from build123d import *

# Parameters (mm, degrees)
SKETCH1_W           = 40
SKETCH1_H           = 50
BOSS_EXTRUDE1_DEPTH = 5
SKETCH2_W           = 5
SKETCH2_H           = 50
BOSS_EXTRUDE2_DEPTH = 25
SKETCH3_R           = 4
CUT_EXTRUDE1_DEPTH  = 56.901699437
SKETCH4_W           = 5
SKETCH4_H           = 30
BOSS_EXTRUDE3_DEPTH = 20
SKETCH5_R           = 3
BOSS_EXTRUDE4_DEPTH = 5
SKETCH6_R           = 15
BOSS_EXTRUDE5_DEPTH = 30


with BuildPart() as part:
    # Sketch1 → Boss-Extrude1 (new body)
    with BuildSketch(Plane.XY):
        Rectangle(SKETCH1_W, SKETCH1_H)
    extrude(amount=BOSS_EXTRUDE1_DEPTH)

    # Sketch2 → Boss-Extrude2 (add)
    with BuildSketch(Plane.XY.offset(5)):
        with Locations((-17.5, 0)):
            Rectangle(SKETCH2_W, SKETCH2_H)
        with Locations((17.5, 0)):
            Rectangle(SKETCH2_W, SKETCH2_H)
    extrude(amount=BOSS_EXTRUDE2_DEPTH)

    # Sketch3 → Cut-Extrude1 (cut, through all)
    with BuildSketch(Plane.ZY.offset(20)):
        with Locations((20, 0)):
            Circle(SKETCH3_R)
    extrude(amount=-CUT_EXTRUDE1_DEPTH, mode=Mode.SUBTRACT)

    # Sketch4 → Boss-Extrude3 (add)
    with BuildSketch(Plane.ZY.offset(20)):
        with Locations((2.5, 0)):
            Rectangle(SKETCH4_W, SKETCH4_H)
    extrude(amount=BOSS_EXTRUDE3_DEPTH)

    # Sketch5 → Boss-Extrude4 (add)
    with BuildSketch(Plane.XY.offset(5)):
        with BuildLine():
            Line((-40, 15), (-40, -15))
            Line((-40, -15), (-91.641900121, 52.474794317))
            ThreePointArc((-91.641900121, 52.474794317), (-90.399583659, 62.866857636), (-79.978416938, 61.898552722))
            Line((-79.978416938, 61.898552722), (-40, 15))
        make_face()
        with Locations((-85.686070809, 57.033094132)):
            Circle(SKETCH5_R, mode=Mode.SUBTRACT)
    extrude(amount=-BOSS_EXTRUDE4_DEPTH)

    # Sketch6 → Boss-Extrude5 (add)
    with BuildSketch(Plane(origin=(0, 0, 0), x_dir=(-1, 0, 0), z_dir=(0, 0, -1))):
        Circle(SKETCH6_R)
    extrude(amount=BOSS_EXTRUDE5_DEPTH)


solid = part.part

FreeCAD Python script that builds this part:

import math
import FreeCAD as App
import Part
import Sketcher
from FreeCAD import Vector
Q = App.Units.Quantity


def add_polygon(sketch, points):
    """Adds a closed chain of lines whose ends are joined by coincident constraints."""
    first, n = sketch.GeometryCount, len(points)
    for a, b in zip(points, points[1:] + points[:1]):
        sketch.addGeometry(Part.LineSegment(App.Vector(*a, 0), App.Vector(*b, 0)), False)
    for i in range(n):
        sketch.addConstraint(Sketcher.Constraint("Coincident", first + i, 2, first + (i + 1) % n, 1))

doc = App.newDocument("Part")
body = doc.addObject("PartDesign::Body", "Body")

sketch1 = doc.addObject("Sketcher::SketchObject", "Sketch")
body.addObject(sketch1)
sketch1.AttachmentSupport = (doc.XY_Plane, [""])
sketch1.MapMode = "FlatFace"
add_polygon(sketch1, [(-20, 25), (-20, -25), (20, -25), (20, 25)])
sketch1.addConstraint(Sketcher.Constraint("Vertical", 0))
sketch1.addConstraint(Sketcher.Constraint("Horizontal", 1))
sketch1.addConstraint(Sketcher.Constraint("Vertical", 2))
sketch1.addConstraint(Sketcher.Constraint("Horizontal", 3))
sketch1.addConstraint(Sketcher.Constraint("Symmetric", 0, 2, 2, 2, -1, 1))
sketch1.addConstraint(Sketcher.Constraint("DistanceX", 1, 1, 1, 2, Q("40 mm")))
sketch1.addConstraint(Sketcher.Constraint("DistanceY", 0, 2, 0, 1, Q("50 mm")))
pad1 = doc.addObject("PartDesign::Pad", "Pad")
body.addObject(pad1)
pad1.Profile = sketch1
pad1.Length = 5

sketch2 = doc.addObject("Sketcher::SketchObject", "Sketch001")
body.addObject(sketch2)
sketch2.AttachmentSupport = (doc.XY_Plane, [""])
sketch2.MapMode = "FlatFace"
sketch2.AttachmentOffset = App.Placement(Vector(0, 0, 5), App.Rotation())
add_polygon(sketch2, [(-20, 25), (-20, -25), (-15, -25), (-15, 25)])
add_polygon(sketch2, [(15, 25), (15, -25), (20, -25), (20, 25)])
sketch2.addConstraint(Sketcher.Constraint("Vertical", 0))
sketch2.addConstraint(Sketcher.Constraint("Horizontal", 1))
sketch2.addConstraint(Sketcher.Constraint("Vertical", 2))
sketch2.addConstraint(Sketcher.Constraint("Horizontal", 3))
sketch2.addConstraint(Sketcher.Constraint("Vertical", 4))
sketch2.addConstraint(Sketcher.Constraint("Horizontal", 5))
sketch2.addConstraint(Sketcher.Constraint("Vertical", 6))
sketch2.addConstraint(Sketcher.Constraint("Horizontal", 7))
sketch2.addConstraint(Sketcher.Constraint("Symmetric", 2, 2, 4, 2, -1, 1))
sketch2.addConstraint(Sketcher.Constraint("Symmetric", 0, 2, 6, 2, -1, 1))
sketch2.addConstraint(Sketcher.Constraint("Horizontal", 1, 2, 4, 2))
sketch2.addConstraint(Sketcher.Constraint("DistanceX", 1, 1, 1, 2, Q("5 mm")))
sketch2.addConstraint(Sketcher.Constraint("DistanceY", 0, 2, 0, 1, Q("50 mm")))
sketch2.addConstraint(Sketcher.Constraint("DistanceX", 0, 2, -1, 1, Q("20 mm")))
pad2 = doc.addObject("PartDesign::Pad", "Pad001")
body.addObject(pad2)
pad2.Profile = sketch2
pad2.Length = 25

sketch3 = doc.addObject("Sketcher::SketchObject", "Sketch002")
body.addObject(sketch3)
sketch3.AttachmentSupport = (doc.YZ_Plane, [""])
sketch3.MapMode = "FlatFace"
sketch3.AttachmentOffset = App.Placement(Vector(0, 0, -20), App.Rotation())
sketch3.addGeometry(Part.Circle(Vector(0, 20, 0), Vector(0, 0, 1), 4), False)
sketch3.addConstraint(Sketcher.Constraint("PointOnObject", 0, 3, -2))
sketch3.addConstraint(Sketcher.Constraint("Diameter", 0, Q("8 mm")))
sketch3.addConstraint(Sketcher.Constraint("DistanceY", -1, 1, 0, 3, Q("20 mm")))
pocket1 = doc.addObject("PartDesign::Pocket", "Pocket")
body.addObject(pocket1)
pocket1.Profile = sketch3
pocket1.Type = "ThroughAll"
pocket1.Reversed = True

sketch4 = doc.addObject("Sketcher::SketchObject", "Sketch003")
body.addObject(sketch4)
sketch4.AttachmentSupport = (doc.YZ_Plane, [""])
sketch4.MapMode = "FlatFace"
sketch4.AttachmentOffset = App.Placement(Vector(0, 0, -20), App.Rotation())
add_polygon(sketch4, [(15, 0), (-15, 0), (-15, 5), (15, 5)])
sketch4.addConstraint(Sketcher.Constraint("Horizontal", 0))
sketch4.addConstraint(Sketcher.Constraint("Vertical", 1))
sketch4.addConstraint(Sketcher.Constraint("Horizontal", 2))
sketch4.addConstraint(Sketcher.Constraint("Vertical", 3))
sketch4.addConstraint(Sketcher.Constraint("Symmetric", 0, 2, 3, 2, -1, 1))
sketch4.addConstraint(Sketcher.Constraint("DistanceX", 0, 2, 0, 1, Q("30 mm")))
sketch4.addConstraint(Sketcher.Constraint("DistanceY", 1, 1, 1, 2, Q("5 mm")))
pad3 = doc.addObject("PartDesign::Pad", "Pad002")
body.addObject(pad3)
pad3.Profile = sketch4
pad3.Length = 20
pad3.Reversed = True

sketch5 = doc.addObject("Sketcher::SketchObject", "Sketch004")
body.addObject(sketch5)
sketch5.AttachmentSupport = (doc.XY_Plane, [""])
sketch5.MapMode = "FlatFace"
sketch5.AttachmentOffset = App.Placement(Vector(0, 0, 5), App.Rotation())
sketch5.addGeometry(Part.LineSegment(Vector(-40, -15, 0), Vector(-40, 15, 0)), False)
sketch5.addGeometry(Part.LineSegment(Vector(-40, 15, 0), Vector(-80, 61.9, 0)), False)
sketch5.addGeometry(Part.ArcOfCircle(Part.Circle(Vector(-85.7, 57, 0), Vector(0, 0, 1), 7.5), math.radians(40), math.radians(217)), False)
sketch5.addGeometry(Part.LineSegment(Vector(-91.6, 52.5, 0), Vector(-40, -15, 0)), False)
sketch5.addGeometry(Part.Circle(Vector(-85.7, 57, 0), Vector(0, 0, 1), 3), False)
sketch5.addConstraint(Sketcher.Constraint("Coincident", 0, 2, 1, 1))
sketch5.addConstraint(Sketcher.Constraint("Tangent", 1, 2, 2, 1))
sketch5.addConstraint(Sketcher.Constraint("Tangent", 2, 2, 3, 1))
sketch5.addConstraint(Sketcher.Constraint("Coincident", 3, 2, 0, 1))
sketch5.addConstraint(Sketcher.Constraint("Vertical", 0))
sketch5.addConstraint(Sketcher.Constraint("Coincident", 4, 3, 2, 3))
sketch5.addConstraint(Sketcher.Constraint("Diameter", 4, Q("6 mm")))
sketch5.addConstraint(Sketcher.Constraint("Radius", 2, Q("7.5 mm")))
sketch5.addConstraint(Sketcher.Constraint("DistanceY", 0, 1, 0, 2, Q("30 mm")))
sketch5.addConstraint(Sketcher.Constraint("DistanceX", 0, 2, -1, 1, Q("40 mm")))
sketch5.addConstraint(Sketcher.Constraint("DistanceY", -1, 1, 0, 2, Q("15 mm")))
sketch5.addConstraint(Sketcher.Constraint("DistanceX", 2, 2, -1, 1, Q("91.6419 mm")))
sketch5.addConstraint(Sketcher.Constraint("DistanceY", 2, 2, 4, 3, Q("4.5583 mm")))
pad4 = doc.addObject("PartDesign::Pad", "Pad003")
body.addObject(pad4)
pad4.Profile = sketch5
pad4.Length = 5
pad4.Reversed = True

sketch6 = doc.addObject("Sketcher::SketchObject", "Sketch005")
body.addObject(sketch6)
sketch6.AttachmentSupport = (doc.XY_Plane, [""])
sketch6.MapMode = "FlatFace"
sketch6.addGeometry(Part.Circle(Vector(0, 0, 0), Vector(0, 0, 1), 15), False)
sketch6.addConstraint(Sketcher.Constraint("Coincident", 0, 3, -1, 1))
sketch6.addConstraint(Sketcher.Constraint("Diameter", 0, Q("30 mm")))
pad5 = doc.addObject("PartDesign::Pad", "Pad004")
body.addObject(pad5)
pad5.Profile = sketch6
pad5.Length = 30
pad5.Reversed = True

doc.recompute()
